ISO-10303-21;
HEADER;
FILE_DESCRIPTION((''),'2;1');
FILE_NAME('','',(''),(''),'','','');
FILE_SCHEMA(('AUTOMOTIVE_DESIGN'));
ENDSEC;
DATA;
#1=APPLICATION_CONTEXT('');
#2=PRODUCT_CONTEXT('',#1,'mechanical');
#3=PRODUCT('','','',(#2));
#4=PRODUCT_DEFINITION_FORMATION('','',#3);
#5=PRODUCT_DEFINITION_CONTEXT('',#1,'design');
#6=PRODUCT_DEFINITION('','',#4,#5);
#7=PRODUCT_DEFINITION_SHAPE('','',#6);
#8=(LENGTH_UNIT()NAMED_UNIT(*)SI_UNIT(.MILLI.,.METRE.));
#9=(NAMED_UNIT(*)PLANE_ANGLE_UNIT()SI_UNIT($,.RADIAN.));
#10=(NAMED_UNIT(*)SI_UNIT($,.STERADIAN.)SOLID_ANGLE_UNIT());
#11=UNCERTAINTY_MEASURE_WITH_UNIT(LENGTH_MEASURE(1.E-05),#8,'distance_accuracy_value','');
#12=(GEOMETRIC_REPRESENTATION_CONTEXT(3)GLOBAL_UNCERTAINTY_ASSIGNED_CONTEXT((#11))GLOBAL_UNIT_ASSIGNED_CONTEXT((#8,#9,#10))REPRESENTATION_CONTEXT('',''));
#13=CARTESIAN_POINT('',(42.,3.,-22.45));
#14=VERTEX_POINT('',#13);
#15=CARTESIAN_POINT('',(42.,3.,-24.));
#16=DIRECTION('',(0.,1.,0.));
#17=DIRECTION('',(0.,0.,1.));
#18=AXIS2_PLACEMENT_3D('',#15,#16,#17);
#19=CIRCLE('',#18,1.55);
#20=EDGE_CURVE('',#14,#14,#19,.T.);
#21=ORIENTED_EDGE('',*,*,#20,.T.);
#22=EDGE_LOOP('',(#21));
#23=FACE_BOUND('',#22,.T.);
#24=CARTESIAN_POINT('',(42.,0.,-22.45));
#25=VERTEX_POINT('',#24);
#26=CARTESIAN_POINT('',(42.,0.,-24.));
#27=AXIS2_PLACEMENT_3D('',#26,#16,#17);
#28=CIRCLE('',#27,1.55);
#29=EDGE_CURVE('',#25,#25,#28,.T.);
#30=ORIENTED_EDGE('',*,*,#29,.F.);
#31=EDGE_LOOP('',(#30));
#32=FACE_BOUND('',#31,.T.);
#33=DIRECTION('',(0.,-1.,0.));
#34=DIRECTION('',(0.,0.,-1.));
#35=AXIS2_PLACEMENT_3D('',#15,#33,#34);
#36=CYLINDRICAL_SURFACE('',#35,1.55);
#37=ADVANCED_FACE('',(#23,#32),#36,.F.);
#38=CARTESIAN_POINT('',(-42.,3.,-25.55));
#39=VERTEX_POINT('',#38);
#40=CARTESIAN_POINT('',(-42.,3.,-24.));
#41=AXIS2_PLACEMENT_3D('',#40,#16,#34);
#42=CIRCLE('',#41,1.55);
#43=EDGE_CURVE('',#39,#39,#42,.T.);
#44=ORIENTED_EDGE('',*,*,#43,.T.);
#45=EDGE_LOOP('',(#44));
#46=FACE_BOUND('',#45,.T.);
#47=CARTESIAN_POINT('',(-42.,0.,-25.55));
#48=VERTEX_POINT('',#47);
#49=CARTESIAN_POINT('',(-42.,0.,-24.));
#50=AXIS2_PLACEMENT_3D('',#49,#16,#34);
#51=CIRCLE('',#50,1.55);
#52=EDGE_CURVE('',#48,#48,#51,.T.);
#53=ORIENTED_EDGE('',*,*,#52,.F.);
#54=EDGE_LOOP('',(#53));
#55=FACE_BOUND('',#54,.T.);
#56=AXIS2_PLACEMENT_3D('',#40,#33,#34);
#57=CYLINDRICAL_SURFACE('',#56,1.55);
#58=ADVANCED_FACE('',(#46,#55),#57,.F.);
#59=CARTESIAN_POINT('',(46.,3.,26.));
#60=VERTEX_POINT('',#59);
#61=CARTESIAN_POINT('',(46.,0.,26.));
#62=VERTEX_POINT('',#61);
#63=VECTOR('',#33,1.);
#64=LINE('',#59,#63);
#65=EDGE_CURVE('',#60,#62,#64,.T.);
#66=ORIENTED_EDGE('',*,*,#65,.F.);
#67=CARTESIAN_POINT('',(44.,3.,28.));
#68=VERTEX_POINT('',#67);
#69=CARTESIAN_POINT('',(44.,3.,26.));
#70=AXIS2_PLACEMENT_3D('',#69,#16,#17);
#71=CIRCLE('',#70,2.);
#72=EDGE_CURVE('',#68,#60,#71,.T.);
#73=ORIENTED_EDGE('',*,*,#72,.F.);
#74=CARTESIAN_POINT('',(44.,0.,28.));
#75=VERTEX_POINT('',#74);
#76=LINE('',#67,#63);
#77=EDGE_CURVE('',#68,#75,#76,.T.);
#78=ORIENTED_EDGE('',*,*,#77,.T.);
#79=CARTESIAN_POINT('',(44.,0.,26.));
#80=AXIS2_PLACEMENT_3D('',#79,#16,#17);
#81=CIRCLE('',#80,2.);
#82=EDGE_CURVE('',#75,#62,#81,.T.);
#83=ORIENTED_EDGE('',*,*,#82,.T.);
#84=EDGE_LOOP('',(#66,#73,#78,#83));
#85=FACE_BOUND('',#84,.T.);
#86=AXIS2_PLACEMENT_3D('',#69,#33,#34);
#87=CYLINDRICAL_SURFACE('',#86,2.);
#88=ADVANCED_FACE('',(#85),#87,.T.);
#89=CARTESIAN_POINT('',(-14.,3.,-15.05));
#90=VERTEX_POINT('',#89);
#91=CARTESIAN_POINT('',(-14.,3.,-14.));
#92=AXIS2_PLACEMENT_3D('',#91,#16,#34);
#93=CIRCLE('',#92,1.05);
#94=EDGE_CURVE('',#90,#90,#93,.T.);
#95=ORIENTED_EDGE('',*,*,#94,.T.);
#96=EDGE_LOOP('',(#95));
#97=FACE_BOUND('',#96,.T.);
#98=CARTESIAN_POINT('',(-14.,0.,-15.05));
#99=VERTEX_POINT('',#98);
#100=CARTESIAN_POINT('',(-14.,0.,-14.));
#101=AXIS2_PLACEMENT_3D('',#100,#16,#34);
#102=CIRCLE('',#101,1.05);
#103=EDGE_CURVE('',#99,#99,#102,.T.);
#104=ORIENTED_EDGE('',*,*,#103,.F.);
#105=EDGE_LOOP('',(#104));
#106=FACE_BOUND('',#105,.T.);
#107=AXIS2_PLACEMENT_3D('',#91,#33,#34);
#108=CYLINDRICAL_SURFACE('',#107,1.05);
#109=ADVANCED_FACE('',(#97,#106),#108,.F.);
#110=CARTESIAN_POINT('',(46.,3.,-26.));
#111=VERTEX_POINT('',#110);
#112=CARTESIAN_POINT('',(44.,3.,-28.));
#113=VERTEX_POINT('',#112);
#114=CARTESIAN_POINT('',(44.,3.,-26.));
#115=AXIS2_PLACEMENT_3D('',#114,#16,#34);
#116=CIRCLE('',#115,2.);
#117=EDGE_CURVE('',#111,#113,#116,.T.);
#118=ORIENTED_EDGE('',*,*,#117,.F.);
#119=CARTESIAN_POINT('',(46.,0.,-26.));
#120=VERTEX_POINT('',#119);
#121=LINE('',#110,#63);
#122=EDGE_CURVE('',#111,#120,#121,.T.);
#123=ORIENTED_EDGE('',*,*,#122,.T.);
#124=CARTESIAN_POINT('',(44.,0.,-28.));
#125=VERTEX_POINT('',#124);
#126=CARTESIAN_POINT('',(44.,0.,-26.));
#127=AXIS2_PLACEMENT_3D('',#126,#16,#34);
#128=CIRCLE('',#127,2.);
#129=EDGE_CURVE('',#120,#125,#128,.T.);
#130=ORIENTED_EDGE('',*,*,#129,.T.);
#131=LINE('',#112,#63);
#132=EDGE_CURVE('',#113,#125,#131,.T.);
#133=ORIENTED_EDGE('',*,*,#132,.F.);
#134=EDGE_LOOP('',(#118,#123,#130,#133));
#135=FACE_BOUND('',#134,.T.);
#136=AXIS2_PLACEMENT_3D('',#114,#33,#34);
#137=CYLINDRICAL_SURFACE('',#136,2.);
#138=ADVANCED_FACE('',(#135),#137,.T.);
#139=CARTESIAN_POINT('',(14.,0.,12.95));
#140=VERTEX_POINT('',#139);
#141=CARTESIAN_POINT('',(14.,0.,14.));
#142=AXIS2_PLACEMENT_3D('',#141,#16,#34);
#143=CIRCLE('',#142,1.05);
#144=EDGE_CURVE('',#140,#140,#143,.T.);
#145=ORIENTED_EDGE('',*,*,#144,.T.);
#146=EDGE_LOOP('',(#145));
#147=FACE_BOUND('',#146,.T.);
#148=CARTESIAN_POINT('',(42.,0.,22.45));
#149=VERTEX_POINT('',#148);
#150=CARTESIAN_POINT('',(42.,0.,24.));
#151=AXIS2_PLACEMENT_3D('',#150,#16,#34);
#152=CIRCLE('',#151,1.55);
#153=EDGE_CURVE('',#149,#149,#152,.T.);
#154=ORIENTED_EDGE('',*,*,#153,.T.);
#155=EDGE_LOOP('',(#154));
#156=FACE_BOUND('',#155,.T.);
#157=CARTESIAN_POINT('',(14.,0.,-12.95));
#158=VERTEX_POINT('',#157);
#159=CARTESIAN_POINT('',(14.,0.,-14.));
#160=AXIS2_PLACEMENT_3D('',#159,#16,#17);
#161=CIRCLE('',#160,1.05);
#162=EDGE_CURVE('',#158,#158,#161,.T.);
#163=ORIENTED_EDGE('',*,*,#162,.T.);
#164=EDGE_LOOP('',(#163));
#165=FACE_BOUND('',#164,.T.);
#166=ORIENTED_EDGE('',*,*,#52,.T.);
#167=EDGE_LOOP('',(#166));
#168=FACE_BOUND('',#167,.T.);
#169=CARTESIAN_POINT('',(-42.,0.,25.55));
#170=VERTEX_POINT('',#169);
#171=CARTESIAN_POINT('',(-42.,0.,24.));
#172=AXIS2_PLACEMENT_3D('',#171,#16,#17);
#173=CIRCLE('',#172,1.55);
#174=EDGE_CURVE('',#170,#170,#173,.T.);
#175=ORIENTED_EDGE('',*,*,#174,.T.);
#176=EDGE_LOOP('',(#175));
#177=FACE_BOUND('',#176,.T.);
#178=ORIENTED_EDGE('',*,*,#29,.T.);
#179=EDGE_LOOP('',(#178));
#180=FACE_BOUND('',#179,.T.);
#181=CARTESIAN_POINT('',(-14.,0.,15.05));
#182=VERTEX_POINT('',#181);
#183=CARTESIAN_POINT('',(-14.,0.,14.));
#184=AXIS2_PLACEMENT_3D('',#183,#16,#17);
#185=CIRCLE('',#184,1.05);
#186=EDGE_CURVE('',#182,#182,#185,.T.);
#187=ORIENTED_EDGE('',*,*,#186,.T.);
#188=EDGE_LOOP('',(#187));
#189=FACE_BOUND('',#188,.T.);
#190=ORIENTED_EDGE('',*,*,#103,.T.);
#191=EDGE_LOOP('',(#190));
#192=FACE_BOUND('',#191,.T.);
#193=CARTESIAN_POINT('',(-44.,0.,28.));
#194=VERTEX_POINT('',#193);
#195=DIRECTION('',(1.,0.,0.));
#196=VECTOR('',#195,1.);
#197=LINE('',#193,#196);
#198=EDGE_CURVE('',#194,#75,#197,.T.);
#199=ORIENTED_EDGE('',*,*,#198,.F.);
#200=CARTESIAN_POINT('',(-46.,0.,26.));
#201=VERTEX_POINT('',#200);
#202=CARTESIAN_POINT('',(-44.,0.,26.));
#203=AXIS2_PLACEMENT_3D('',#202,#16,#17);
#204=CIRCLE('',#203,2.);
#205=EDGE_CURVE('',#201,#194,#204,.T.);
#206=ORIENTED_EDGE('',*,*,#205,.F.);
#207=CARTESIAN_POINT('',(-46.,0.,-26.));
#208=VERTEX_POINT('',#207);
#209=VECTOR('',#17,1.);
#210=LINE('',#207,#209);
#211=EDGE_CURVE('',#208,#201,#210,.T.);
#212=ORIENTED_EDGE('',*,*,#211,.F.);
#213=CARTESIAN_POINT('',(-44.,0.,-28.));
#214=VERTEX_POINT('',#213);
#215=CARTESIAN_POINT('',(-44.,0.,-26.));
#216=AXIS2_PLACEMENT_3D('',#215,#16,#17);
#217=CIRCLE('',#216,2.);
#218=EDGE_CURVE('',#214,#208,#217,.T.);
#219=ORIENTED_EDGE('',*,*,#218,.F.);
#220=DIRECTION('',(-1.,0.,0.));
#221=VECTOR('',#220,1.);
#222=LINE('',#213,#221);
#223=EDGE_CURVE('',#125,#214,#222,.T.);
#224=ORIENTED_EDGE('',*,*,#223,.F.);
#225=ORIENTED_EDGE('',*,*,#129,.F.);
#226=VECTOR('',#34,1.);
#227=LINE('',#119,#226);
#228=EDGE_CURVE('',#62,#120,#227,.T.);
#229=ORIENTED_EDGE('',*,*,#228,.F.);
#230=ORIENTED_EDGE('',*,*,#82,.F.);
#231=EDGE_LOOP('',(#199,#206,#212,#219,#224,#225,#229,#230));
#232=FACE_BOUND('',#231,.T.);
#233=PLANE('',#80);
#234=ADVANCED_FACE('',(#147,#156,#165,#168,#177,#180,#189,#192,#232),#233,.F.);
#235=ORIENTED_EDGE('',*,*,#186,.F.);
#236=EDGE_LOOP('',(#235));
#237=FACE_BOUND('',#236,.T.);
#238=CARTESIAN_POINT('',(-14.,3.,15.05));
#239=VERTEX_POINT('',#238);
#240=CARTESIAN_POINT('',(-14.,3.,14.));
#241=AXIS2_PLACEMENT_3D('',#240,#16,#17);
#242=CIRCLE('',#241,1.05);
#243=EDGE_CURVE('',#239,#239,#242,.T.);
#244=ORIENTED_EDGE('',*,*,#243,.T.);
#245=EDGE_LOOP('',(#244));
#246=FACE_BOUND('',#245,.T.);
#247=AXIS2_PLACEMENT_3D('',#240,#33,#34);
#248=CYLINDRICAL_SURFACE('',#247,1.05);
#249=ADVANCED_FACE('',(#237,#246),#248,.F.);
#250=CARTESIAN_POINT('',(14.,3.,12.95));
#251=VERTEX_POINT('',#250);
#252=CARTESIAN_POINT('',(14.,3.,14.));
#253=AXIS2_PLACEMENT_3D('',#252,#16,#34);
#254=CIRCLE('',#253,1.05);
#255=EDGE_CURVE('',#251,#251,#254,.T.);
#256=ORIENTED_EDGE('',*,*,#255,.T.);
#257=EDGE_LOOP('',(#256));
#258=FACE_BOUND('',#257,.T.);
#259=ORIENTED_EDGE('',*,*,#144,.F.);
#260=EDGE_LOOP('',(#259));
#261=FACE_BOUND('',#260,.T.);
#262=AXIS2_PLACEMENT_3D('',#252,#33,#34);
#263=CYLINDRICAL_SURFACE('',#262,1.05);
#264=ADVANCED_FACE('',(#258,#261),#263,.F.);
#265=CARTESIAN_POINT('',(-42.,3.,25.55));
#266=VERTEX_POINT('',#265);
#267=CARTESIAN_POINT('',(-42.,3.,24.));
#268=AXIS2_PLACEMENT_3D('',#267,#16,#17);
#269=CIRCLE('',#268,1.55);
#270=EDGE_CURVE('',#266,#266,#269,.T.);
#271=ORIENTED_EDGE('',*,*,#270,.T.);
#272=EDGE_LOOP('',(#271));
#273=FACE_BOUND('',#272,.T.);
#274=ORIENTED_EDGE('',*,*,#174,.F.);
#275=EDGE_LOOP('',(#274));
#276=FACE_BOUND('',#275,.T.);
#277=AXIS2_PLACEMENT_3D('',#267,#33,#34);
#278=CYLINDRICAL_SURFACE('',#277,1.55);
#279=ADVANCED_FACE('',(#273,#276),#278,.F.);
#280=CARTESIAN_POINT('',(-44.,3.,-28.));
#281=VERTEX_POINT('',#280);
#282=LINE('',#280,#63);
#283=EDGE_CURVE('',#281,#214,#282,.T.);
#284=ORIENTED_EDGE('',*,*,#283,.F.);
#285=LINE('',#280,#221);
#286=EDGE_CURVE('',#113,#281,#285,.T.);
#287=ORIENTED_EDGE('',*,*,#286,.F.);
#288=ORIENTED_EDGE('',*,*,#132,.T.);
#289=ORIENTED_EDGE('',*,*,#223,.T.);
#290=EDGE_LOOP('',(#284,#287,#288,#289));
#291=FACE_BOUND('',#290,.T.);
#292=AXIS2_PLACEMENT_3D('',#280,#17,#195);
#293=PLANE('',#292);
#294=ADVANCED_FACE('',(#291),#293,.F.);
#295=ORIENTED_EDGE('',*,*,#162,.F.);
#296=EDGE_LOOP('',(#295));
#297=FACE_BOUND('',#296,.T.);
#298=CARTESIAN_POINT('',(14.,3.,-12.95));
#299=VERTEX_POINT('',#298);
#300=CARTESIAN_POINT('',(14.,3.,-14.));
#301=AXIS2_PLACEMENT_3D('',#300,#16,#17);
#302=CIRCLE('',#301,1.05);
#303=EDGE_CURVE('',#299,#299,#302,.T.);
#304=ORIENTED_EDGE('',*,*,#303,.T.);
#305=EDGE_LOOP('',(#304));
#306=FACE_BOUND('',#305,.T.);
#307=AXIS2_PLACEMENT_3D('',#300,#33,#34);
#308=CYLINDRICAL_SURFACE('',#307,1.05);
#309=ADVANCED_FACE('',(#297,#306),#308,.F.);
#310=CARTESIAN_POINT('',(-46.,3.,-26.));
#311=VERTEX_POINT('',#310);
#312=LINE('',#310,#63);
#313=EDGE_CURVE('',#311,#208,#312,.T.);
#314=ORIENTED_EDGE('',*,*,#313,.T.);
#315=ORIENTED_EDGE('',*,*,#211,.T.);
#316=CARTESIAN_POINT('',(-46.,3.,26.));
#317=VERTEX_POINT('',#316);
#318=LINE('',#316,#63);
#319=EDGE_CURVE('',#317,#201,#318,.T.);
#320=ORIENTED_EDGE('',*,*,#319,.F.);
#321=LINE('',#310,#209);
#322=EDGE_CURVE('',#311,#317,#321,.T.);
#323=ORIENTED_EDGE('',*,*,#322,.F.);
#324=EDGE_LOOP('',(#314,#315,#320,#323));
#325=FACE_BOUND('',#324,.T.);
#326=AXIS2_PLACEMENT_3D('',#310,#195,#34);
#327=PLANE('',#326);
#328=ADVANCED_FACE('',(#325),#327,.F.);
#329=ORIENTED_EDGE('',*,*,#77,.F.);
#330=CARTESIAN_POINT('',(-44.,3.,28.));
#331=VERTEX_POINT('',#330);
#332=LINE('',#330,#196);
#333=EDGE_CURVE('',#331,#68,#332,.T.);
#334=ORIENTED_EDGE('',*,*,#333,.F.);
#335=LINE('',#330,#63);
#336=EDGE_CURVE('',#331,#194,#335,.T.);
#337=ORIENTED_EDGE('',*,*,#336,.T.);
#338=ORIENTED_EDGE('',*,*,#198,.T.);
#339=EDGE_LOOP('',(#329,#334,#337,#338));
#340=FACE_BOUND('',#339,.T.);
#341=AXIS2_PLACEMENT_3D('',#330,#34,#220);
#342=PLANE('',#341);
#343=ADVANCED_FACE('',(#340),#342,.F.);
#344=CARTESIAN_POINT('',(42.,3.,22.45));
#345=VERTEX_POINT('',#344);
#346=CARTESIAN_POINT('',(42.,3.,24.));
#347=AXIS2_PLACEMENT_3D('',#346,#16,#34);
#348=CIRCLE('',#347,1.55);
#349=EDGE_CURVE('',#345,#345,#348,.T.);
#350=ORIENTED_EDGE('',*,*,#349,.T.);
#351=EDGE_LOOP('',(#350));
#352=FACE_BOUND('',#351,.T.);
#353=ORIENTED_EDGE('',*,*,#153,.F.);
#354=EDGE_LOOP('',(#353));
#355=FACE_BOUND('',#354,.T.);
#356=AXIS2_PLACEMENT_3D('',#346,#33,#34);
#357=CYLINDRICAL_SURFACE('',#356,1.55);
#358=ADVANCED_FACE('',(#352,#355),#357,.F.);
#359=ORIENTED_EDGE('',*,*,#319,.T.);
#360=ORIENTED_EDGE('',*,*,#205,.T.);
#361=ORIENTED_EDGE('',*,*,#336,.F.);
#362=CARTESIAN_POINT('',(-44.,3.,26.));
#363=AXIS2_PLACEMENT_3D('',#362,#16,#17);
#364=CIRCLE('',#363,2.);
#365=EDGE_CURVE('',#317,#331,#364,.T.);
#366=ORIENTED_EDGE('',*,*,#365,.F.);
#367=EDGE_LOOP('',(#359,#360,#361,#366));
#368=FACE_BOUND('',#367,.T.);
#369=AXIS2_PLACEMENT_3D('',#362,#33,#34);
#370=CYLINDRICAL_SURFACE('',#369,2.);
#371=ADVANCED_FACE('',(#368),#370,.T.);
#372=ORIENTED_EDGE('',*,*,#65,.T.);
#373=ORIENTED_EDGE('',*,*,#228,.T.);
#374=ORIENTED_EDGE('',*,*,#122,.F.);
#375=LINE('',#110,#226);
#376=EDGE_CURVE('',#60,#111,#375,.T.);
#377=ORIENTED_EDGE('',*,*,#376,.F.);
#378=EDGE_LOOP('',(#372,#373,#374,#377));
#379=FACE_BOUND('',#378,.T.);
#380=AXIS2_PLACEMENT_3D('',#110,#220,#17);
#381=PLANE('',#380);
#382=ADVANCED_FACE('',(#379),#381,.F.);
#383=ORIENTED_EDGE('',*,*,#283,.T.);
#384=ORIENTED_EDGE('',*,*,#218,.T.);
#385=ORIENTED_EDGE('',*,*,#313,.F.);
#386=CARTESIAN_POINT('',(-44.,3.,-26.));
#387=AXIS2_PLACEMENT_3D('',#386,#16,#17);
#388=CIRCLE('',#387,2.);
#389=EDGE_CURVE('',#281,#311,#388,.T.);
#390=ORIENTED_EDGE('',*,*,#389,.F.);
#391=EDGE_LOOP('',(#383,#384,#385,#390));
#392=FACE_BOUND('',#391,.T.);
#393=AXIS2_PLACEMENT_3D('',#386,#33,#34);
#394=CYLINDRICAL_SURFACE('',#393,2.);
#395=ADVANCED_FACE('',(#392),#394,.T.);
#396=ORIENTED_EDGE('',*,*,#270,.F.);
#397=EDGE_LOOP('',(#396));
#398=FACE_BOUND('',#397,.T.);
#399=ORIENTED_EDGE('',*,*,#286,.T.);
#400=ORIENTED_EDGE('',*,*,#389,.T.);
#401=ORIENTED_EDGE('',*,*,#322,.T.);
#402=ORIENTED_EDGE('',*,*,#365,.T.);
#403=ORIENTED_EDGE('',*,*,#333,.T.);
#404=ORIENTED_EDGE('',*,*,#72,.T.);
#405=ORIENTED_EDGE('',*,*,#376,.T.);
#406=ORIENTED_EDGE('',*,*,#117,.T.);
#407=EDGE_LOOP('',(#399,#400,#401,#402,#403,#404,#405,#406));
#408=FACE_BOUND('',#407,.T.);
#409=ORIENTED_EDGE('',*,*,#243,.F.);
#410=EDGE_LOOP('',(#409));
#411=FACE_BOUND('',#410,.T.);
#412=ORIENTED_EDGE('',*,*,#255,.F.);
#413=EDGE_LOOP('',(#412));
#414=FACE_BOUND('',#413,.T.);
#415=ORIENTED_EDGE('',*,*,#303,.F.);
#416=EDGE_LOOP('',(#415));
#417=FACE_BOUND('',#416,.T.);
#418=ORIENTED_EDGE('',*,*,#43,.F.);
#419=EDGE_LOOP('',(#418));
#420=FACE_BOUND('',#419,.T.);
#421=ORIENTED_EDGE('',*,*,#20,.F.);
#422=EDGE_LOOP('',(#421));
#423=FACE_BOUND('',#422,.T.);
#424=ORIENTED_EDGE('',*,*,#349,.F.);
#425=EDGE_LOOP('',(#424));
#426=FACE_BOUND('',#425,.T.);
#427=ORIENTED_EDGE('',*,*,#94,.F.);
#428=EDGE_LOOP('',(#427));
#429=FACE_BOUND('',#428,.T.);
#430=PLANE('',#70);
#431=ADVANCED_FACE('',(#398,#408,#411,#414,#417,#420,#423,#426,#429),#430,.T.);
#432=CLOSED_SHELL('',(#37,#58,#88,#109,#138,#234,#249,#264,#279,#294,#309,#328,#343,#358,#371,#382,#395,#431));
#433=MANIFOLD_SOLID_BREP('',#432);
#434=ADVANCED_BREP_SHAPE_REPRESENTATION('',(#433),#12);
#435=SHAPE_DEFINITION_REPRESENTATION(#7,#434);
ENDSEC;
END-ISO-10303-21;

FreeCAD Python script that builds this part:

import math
import FreeCAD as App
import Part
import Sketcher
from FreeCAD import Vector
Q = App.Units.Quantity

doc = App.newDocument("Part")
body = doc.addObject("PartDesign::Body", "Body")

# Sketch on XZ plane
sketch1 = body.newObject("Sketcher::SketchObject", "Sketch")
sketch1.AttachmentSupport = (doc.getObject("XZ_Plane"), [""])
sketch1.MapMode = "FlatFace"
sketch1.addGeometry(Part.LineSegment(Vector(44, -28, 0), Vector(-44, -28, 0)), False)
sketch1.addGeometry(Part.ArcOfCircle(Part.Circle(Vector(-44, -26, 0), Vector(0, 0, 1), 2), math.radians(-180), math.radians(-90)), False)
sketch1.addGeometry(Part.LineSegment(Vector(-46, -26, 0), Vector(-46, 26, 0)), False)
sketch1.addGeometry(Part.ArcOfCircle(Part.Circle(Vector(-44, 26, 0), Vector(0, 0, 1), 2), math.radians(90), math.radians(180)), False)
sketch1.addGeometry(Part.LineSegment(Vector(-44, 28, 0), Vector(44, 28, 0)), False)
sketch1.addGeometry(Part.ArcOfCircle(Part.Circle(Vector(44, 26, 0), Vector(0, 0, 1), 2), math.radians(0), math.radians(90)), False)
sketch1.addGeometry(Part.LineSegment(Vector(46, 26, 0), Vector(46, -26, 0)), False)
sketch1.addGeometry(Part.ArcOfCircle(Part.Circle(Vector(44, -26, 0), Vector(0, 0, 1), 2), math.radians(-90), math.radians(0)), False)
sketch1.addGeometry(Part.Circle(Vector(42, 24, 0), Vector(0, 0, 1), 1.55), False)
sketch1.addGeometry(Part.Circle(Vector(14, 14, 0), Vector(0, 0, 1), 1.05), False)
sketch1.addGeometry(Part.Circle(Vector(-14, 14, 0), Vector(0, 0, 1), 1.05), False)
sketch1.addGeometry(Part.Circle(Vector(-42, 24, 0), Vector(0, 0, 1), 1.55), False)
sketch1.addGeometry(Part.Circle(Vector(42, -24, 0), Vector(0, 0, 1), 1.55), False)
sketch1.addGeometry(Part.Circle(Vector(14, -14, 0), Vector(0, 0, 1), 1.05), False)
sketch1.addGeometry(Part.Circle(Vector(-14, -14, 0), Vector(0, 0, 1), 1.05), False)
sketch1.addGeometry(Part.Circle(Vector(-42, -24, 0), Vector(0, 0, 1), 1.55), False)
sketch1.addConstraint(Sketcher.Constraint("Tangent", 0, 2, 1, 2))
sketch1.addConstraint(Sketcher.Constraint("Tangent", 1, 1, 2, 1))
sketch1.addConstraint(Sketcher.Constraint("Tangent", 2, 2, 3, 2))
sketch1.addConstraint(Sketcher.Constraint("Tangent", 3, 1, 4, 1))
sketch1.addConstraint(Sketcher.Constraint("Tangent", 4, 2, 5, 2))
sketch1.addConstraint(Sketcher.Constraint("Tangent", 5, 1, 6, 1))
sketch1.addConstraint(Sketcher.Constraint("Tangent", 6, 2, 7, 2))
sketch1.addConstraint(Sketcher.Constraint("Tangent", 7, 1, 0, 1))
sketch1.addConstraint(Sketcher.Constraint("Horizontal", 0))
sketch1.addConstraint(Sketcher.Constraint("Vertical", 2))
sketch1.addConstraint(Sketcher.Constraint("Horizontal", 4))
sketch1.addConstraint(Sketcher.Constraint("Vertical", 6))
sketch1.addConstraint(Sketcher.Constraint("Equal", 1, 3))
sketch1.addConstraint(Sketcher.Constraint("Equal", 3, 5))
sketch1.addConstraint(Sketcher.Constraint("Equal", 5, 7))
sketch1.addConstraint(Sketcher.Constraint("Equal", 9, 10))
sketch1.addConstraint(Sketcher.Constraint("Equal", 8, 11))
sketch1.addConstraint(Sketcher.Constraint("Equal", 11, 12))
sketch1.addConstraint(Sketcher.Constraint("Equal", 10, 13))
sketch1.addConstraint(Sketcher.Constraint("Equal", 13, 14))
sketch1.addConstraint(Sketcher.Constraint("Equal", 12, 15))
sketch1.addConstraint(Sketcher.Constraint("Symmetric", 1, 3, 5, 3, -1, 1))
sketch1.addConstraint(Sketcher.Constraint("Symmetric", 11, 3, 12, 3, -1, 1))
sketch1.addConstraint(Sketcher.Constraint("Symmetric", 10, 3, 13, 3, -1, 1))
sketch1.addConstraint(Sketcher.Constraint("Symmetric", 9, 3, 14, 3, -1, 1))
sketch1.addConstraint(Sketcher.Constraint("Symmetric", 8, 3, 15, 3, -1, 1))
sketch1.addConstraint(Sketcher.Constraint("Symmetric", 9, 3, 10, 3, -2))
sketch1.addConstraint(Sketcher.Constraint("Symmetric", 8, 3, 11, 3, -2))
sketch1.addConstraint(Sketcher.Constraint("Radius", 1, Q("2 mm")))
sketch1.addConstraint(Sketcher.Constraint("Diameter", 8, Q("3.1 mm")))
sketch1.addConstraint(Sketcher.Constraint("Diameter", 9, Q("2.1 mm")))
sketch1.addConstraint(Sketcher.Constraint("DistanceX", 0, 2, 0, 1, Q("88 mm")))
sketch1.addConstraint(Sketcher.Constraint("DistanceY", 2, 1, 2, 2, Q("52 mm")))
sketch1.addConstraint(Sketcher.Constraint("DistanceX", -1, 1, 8, 3, Q("42 mm")))
sketch1.addConstraint(Sketcher.Constraint("DistanceY", -1, 1, 8, 3, Q("24 mm")))
sketch1.addConstraint(Sketcher.Constraint("DistanceX", -1, 1, 9, 3, Q("14 mm")))
sketch1.addConstraint(Sketcher.Constraint("DistanceY", -1, 1, 9, 3, Q("14 mm")))
pad1 = body.newObject("PartDesign::Pad", "Pad")
pad1.Profile = sketch1
pad1.Length = 3
pad1.Reversed = True

doc.recompute()
